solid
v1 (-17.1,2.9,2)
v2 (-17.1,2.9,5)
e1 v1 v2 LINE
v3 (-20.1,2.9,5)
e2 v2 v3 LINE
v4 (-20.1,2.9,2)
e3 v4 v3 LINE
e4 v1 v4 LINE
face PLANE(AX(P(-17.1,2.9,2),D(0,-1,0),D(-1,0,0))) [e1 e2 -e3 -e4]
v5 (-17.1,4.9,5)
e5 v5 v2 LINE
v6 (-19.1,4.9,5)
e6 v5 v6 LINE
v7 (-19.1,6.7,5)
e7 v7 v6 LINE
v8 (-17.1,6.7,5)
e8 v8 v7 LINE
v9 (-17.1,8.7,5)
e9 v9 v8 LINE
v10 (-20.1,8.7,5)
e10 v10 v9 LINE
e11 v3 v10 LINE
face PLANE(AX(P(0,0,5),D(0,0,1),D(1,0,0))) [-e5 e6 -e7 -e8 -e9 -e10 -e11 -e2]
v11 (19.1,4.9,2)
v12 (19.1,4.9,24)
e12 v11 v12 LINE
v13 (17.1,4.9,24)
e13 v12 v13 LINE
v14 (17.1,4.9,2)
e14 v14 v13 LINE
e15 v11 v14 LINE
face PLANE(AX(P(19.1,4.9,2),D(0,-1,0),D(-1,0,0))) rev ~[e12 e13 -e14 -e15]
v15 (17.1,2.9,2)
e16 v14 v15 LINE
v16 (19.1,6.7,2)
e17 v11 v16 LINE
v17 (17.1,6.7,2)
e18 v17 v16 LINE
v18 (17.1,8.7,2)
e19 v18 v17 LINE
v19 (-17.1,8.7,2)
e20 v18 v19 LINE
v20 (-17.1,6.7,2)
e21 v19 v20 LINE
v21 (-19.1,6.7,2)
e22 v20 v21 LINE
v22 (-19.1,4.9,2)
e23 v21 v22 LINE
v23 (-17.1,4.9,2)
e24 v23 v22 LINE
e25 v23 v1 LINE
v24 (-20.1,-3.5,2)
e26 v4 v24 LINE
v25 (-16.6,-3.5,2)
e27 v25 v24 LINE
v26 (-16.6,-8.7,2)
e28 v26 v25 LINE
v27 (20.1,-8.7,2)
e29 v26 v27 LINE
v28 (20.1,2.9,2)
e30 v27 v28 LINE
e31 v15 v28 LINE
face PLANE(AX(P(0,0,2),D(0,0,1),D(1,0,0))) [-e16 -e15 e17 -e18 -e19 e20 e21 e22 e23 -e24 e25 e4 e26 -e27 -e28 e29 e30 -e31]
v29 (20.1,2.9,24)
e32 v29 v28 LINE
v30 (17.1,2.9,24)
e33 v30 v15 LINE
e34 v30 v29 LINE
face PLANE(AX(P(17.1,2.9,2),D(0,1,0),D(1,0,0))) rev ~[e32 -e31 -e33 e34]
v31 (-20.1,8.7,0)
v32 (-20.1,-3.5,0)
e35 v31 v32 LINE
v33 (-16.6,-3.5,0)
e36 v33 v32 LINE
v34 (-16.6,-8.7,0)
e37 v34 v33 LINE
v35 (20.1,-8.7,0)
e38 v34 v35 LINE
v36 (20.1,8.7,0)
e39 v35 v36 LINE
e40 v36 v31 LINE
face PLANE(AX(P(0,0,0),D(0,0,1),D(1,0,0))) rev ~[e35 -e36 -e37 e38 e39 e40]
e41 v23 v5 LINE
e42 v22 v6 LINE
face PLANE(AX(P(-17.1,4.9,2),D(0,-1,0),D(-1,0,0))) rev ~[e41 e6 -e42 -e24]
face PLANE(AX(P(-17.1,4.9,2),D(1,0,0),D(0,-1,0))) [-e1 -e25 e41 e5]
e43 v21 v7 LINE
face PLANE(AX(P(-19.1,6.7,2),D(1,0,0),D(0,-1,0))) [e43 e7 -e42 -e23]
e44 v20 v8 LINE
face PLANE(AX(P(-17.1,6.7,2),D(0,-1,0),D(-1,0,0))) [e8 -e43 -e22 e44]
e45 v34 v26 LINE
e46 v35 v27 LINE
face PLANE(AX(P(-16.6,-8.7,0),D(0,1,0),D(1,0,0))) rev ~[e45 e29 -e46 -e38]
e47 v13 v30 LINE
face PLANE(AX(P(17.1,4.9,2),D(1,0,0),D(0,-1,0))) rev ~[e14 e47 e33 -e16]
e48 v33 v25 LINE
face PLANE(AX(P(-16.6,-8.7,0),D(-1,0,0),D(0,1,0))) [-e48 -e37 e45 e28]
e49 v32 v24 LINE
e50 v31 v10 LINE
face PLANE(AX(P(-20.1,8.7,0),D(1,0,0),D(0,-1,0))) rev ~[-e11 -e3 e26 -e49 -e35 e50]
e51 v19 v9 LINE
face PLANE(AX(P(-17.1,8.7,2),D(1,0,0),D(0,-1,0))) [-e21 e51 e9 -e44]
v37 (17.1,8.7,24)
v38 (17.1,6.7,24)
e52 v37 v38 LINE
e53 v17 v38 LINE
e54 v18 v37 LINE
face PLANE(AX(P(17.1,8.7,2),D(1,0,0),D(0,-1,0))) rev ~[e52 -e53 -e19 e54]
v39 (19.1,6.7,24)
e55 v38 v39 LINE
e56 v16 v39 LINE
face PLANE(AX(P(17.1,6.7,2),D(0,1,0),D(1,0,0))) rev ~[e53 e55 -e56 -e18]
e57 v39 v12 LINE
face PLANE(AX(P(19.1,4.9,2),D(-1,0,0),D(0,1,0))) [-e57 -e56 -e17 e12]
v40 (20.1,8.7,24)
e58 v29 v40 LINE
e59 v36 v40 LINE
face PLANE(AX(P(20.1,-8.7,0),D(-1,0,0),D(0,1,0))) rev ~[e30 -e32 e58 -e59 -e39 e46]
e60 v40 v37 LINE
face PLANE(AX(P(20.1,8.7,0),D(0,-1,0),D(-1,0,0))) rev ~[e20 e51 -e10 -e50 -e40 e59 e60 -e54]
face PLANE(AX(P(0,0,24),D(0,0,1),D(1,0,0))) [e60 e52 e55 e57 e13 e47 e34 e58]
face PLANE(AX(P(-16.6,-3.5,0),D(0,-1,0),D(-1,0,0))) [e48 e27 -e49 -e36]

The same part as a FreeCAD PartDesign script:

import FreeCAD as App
import Part
import Sketcher
from FreeCAD import Vector
Q = App.Units.Quantity

doc = App.newDocument("Part")
body = doc.addObject("PartDesign::Body", "Body")

sketch1 = body.newObject("Sketcher::SketchObject", "Sketch")
sketch1.AttachmentSupport = (doc.getObject("XY_Plane"), [""])
sketch1.MapMode = "FlatFace"
sketch1.addGeometry([
    Part.LineSegment(Vector(20.1, -8.7, 0), Vector(20.1, 8.7, 0)),
    Part.LineSegment(Vector(20.1, 8.7, 0), Vector(-20.1, 8.7, 0)),
    Part.LineSegment(Vector(-20.1, 8.7, 0), Vector(-20.1, -3.5, 0)),
    Part.LineSegment(Vector(-20.1, -3.5, 0), Vector(-16.6, -3.5, 0)),
    Part.LineSegment(Vector(-16.6, -3.5, 0), Vector(-16.6, -8.7, 0)),
    Part.LineSegment(Vector(-16.6, -8.7, 0), Vector(20.1, -8.7, 0)),
], False)
sketch1.addConstraint([
    Sketcher.Constraint("Coincident", 0, 2, 1, 1),
    Sketcher.Constraint("Coincident", 1, 2, 2, 1),
    Sketcher.Constraint("Coincident", 2, 2, 3, 1),
    Sketcher.Constraint("Coincident", 3, 2, 4, 1),
    Sketcher.Constraint("Coincident", 4, 2, 5, 1),
    Sketcher.Constraint("Coincident", 5, 2, 0, 1),
    Sketcher.Constraint("Vertical", 0),
    Sketcher.Constraint("Horizontal", 1),
    Sketcher.Constraint("Vertical", 2),
    Sketcher.Constraint("Horizontal", 3),
    Sketcher.Constraint("Vertical", 4),
    Sketcher.Constraint("Horizontal", 5),
    Sketcher.Constraint("Symmetric", 1, 2, 5, 2, -1, 1),
    Sketcher.Constraint("DistanceX", 1, 2, 1, 1, Q("40.2 mm")),
    Sketcher.Constraint("DistanceX", 5, 1, 5, 2, Q("36.7 mm")),
    Sketcher.Constraint("DistanceY", 0, 1, 0, 2, Q("17.4 mm")),
    Sketcher.Constraint("DistanceY", 4, 2, 4, 1, Q("5.2 mm")),
])
pad1 = body.newObject("PartDesign::Pad", "Pad")
pad1.Profile = sketch1
pad1.Length = 2

sketch2 = body.newObject("Sketcher::SketchObject", "Sketch001")
sketch2.AttachmentSupport = (doc.getObject("XY_Plane"), [""])
sketch2.MapMode = "FlatFace"
sketch2.AttachmentOffset = App.Placement(Vector(0, 0, 2), App.Rotation())
sketch2.addGeometry([
    Part.LineSegment(Vector(-17.1, 8.7, 0), Vector(-20.1, 8.7, 0)),
    Part.LineSegment(Vector(-20.1, 8.7, 0), Vector(-20.1, 2.9, 0)),
    Part.LineSegment(Vector(-20.1, 2.9, 0), Vector(-17.1, 2.9, 0)),
    Part.LineSegment(Vector(-17.1, 2.9, 0), Vector(-17.1, 4.9, 0)),
    Part.LineSegment(Vector(-17.1, 4.9, 0), Vector(-19.1, 4.9, 0)),
    Part.LineSegment(Vector(-19.1, 4.9, 0), Vector(-19.1, 6.7, 0)),
    Part.LineSegment(Vector(-19.1, 6.7, 0), Vector(-17.1, 6.7, 0)),
    Part.LineSegment(Vector(-17.1, 6.7, 0), Vector(-17.1, 8.7, 0)),
    Part.LineSegment(Vector(17.1, 2.9, 0), Vector(20.1, 2.9, 0)),
    Part.LineSegment(Vector(20.1, 2.9, 0), Vector(20.1, 8.7, 0)),
    Part.LineSegment(Vector(20.1, 8.7, 0), Vector(17.1, 8.7, 0)),
    Part.LineSegment(Vector(17.1, 8.7, 0), Vector(17.1, 6.7, 0)),
    Part.LineSegment(Vector(17.1, 6.7, 0), Vector(19.1, 6.7, 0)),
    Part.LineSegment(Vector(19.1, 6.7, 0), Vector(19.1, 4.9, 0)),
    Part.LineSegment(Vector(19.1, 4.9, 0), Vector(17.1, 4.9, 0)),
    Part.LineSegment(Vector(17.1, 4.9, 0), Vector(17.1, 2.9, 0)),
], False)
sketch2.addConstraint([
    Sketcher.Constraint("Coincident", 0, 2, 1, 1),
    Sketcher.Constraint("Coincident", 1, 2, 2, 1),
    Sketcher.Constraint("Coincident", 2, 2, 3, 1),
    Sketcher.Constraint("Coincident", 3, 2, 4, 1),
    Sketcher.Constraint("Coincident", 4, 2, 5, 1),
    Sketcher.Constraint("Coincident", 5, 2, 6, 1),
    Sketcher.Constraint("Coincident", 6, 2, 7, 1),
    Sketcher.Constraint("Coincident", 7, 2, 0, 1),
    Sketcher.Constraint("Coincident", 8, 2, 9, 1),
    Sketcher.Constraint("Coincident", 9, 2, 10, 1),
    Sketcher.Constraint("Coincident", 10, 2, 11, 1),
    Sketcher.Constraint("Coincident", 11, 2, 12, 1),
    Sketcher.Constraint("Coincident", 12, 2, 13, 1),
    Sketcher.Constraint("Coincident", 13, 2, 14, 1),
    Sketcher.Constraint("Coincident", 14, 2, 15, 1),
    Sketcher.Constraint("Coincident", 15, 2, 8, 1),
    Sketcher.Constraint("Horizontal", 0),
    Sketcher.Constraint("Vertical", 1),
    Sketcher.Constraint("Horizontal", 2),
    Sketcher.Constraint("Vertical", 3),
    Sketcher.Constraint("Horizontal", 4),
    Sketcher.Constraint("Vertical", 5),
    Sketcher.Constraint("Horizontal", 6),
    Sketcher.Constraint("Vertical", 7),
    Sketcher.Constraint("Horizontal", 8),
    Sketcher.Constraint("Vertical", 9),
    Sketcher.Constraint("Horizontal", 10),
    Sketcher.Constraint("Vertical", 11),
    Sketcher.Constraint("Horizontal", 12),
    Sketcher.Constraint("Vertical", 13),
    Sketcher.Constraint("Horizontal", 14),
    Sketcher.Constraint("Vertical", 15),
    Sketcher.Constraint("Symmetric", 1, 2, 8, 2, -2),
    Sketcher.Constraint("Symmetric", 7, 2, 10, 2, -2),
    Sketcher.Constraint("Symmetric", 5, 2, 12, 2, -2),
    Sketcher.Constraint("Symmetric", 3, 2, 14, 2, -2),
    Sketcher.Constraint("Vertical", 3, 2, 6, 2),
    Sketcher.Constraint("Equal", 14, 3),
    Sketcher.Constraint("Equal", 3, 7),
    Sketcher.Constraint("DistanceX", 0, 2, 0, 1, Q("3 mm")),
    Sketcher.Constraint("DistanceX", 4, 2, 4, 1, Q("2 mm")),
    Sketcher.Constraint("DistanceY", 1, 2, 1, 1, Q("5.8 mm")),
    Sketcher.Constraint("DistanceX", 0, 2, -1, 1, Q("20.1 mm")),
    Sketcher.Constraint("DistanceY", -1, 1, 0, 2, Q("8.7 mm")),
])
pad2 = body.newObject("PartDesign::Pad", "Pad001")
pad2.Profile = sketch2
pad2.Length = 3

sketch3 = body.newObject("Sketcher::SketchObject", "Sketch002")
sketch3.AttachmentSupport = (doc.getObject("XY_Plane"), [""])
sketch3.MapMode = "FlatFace"
sketch3.AttachmentOffset = App.Placement(Vector(0, 0, 5), App.Rotation())
sketch3.addGeometry([
    Part.LineSegment(Vector(19.1, 4.9, 0), Vector(17.1, 4.9, 0)),
    Part.LineSegment(Vector(17.1, 4.9, 0), Vector(17.1, 2.9, 0)),
    Part.LineSegment(Vector(17.1, 2.9, 0), Vector(20.1, 2.9, 0)),
    Part.LineSegment(Vector(20.1, 2.9, 0), Vector(20.1, 8.7, 0)),
    Part.LineSegment(Vector(20.1, 8.7, 0), Vector(17.1, 8.7, 0)),
    Part.LineSegment(Vector(17.1, 8.7, 0), Vector(17.1, 6.7, 0)),
    Part.LineSegment(Vector(17.1, 6.7, 0), Vector(19.1, 6.7, 0)),
    Part.LineSegment(Vector(19.1, 6.7, 0), Vector(19.1, 4.9, 0)),
], False)
sketch3.addConstraint([
    Sketcher.Constraint("Coincident", 0, 2, 1, 1),
    Sketcher.Constraint("Coincident", 1, 2, 2, 1),
    Sketcher.Constraint("Coincident", 2, 2, 3, 1),
    Sketcher.Constraint("Coincident", 3, 2, 4, 1),
    Sketcher.Constraint("Coincident", 4, 2, 5, 1),
    Sketcher.Constraint("Coincident", 5, 2, 6, 1),
    Sketcher.Constraint("Coincident", 6, 2, 7, 1),
    Sketcher.Constraint("Coincident", 7, 2, 0, 1),
    Sketcher.Constraint("Horizontal", 0),
    Sketcher.Constraint("Vertical", 1),
    Sketcher.Constraint("Horizontal", 2),
    Sketcher.Constraint("Vertical", 3),
    Sketcher.Constraint("Horizontal", 4),
    Sketcher.Constraint("Vertical", 5),
    Sketcher.Constraint("Horizontal", 6),
    Sketcher.Constraint("Vertical", 7),
    Sketcher.Constraint("Vertical", 1, 2, 4, 2),
    Sketcher.Constraint("Equal", 6, 1),
    Sketcher.Constraint("Equal", 1, 5),
    Sketcher.Constraint("DistanceX", 0, 2, 0, 1, Q("2 mm")),
    Sketcher.Constraint("DistanceX", 2, 1, 2, 2, Q("3 mm")),
    Sketcher.Constraint("DistanceY", 3, 1, 3, 2, Q("5.8 mm")),
    Sketcher.Constraint("DistanceX", -1, 1, 0, 2, Q("17.1 mm")),
    Sketcher.Constraint("DistanceY", -1, 1, 0, 2, Q("4.9 mm")),
])
pad3 = body.newObject("PartDesign::Pad", "Pad002")
pad3.Profile = sketch3
pad3.Length = 19

doc.recompute()
